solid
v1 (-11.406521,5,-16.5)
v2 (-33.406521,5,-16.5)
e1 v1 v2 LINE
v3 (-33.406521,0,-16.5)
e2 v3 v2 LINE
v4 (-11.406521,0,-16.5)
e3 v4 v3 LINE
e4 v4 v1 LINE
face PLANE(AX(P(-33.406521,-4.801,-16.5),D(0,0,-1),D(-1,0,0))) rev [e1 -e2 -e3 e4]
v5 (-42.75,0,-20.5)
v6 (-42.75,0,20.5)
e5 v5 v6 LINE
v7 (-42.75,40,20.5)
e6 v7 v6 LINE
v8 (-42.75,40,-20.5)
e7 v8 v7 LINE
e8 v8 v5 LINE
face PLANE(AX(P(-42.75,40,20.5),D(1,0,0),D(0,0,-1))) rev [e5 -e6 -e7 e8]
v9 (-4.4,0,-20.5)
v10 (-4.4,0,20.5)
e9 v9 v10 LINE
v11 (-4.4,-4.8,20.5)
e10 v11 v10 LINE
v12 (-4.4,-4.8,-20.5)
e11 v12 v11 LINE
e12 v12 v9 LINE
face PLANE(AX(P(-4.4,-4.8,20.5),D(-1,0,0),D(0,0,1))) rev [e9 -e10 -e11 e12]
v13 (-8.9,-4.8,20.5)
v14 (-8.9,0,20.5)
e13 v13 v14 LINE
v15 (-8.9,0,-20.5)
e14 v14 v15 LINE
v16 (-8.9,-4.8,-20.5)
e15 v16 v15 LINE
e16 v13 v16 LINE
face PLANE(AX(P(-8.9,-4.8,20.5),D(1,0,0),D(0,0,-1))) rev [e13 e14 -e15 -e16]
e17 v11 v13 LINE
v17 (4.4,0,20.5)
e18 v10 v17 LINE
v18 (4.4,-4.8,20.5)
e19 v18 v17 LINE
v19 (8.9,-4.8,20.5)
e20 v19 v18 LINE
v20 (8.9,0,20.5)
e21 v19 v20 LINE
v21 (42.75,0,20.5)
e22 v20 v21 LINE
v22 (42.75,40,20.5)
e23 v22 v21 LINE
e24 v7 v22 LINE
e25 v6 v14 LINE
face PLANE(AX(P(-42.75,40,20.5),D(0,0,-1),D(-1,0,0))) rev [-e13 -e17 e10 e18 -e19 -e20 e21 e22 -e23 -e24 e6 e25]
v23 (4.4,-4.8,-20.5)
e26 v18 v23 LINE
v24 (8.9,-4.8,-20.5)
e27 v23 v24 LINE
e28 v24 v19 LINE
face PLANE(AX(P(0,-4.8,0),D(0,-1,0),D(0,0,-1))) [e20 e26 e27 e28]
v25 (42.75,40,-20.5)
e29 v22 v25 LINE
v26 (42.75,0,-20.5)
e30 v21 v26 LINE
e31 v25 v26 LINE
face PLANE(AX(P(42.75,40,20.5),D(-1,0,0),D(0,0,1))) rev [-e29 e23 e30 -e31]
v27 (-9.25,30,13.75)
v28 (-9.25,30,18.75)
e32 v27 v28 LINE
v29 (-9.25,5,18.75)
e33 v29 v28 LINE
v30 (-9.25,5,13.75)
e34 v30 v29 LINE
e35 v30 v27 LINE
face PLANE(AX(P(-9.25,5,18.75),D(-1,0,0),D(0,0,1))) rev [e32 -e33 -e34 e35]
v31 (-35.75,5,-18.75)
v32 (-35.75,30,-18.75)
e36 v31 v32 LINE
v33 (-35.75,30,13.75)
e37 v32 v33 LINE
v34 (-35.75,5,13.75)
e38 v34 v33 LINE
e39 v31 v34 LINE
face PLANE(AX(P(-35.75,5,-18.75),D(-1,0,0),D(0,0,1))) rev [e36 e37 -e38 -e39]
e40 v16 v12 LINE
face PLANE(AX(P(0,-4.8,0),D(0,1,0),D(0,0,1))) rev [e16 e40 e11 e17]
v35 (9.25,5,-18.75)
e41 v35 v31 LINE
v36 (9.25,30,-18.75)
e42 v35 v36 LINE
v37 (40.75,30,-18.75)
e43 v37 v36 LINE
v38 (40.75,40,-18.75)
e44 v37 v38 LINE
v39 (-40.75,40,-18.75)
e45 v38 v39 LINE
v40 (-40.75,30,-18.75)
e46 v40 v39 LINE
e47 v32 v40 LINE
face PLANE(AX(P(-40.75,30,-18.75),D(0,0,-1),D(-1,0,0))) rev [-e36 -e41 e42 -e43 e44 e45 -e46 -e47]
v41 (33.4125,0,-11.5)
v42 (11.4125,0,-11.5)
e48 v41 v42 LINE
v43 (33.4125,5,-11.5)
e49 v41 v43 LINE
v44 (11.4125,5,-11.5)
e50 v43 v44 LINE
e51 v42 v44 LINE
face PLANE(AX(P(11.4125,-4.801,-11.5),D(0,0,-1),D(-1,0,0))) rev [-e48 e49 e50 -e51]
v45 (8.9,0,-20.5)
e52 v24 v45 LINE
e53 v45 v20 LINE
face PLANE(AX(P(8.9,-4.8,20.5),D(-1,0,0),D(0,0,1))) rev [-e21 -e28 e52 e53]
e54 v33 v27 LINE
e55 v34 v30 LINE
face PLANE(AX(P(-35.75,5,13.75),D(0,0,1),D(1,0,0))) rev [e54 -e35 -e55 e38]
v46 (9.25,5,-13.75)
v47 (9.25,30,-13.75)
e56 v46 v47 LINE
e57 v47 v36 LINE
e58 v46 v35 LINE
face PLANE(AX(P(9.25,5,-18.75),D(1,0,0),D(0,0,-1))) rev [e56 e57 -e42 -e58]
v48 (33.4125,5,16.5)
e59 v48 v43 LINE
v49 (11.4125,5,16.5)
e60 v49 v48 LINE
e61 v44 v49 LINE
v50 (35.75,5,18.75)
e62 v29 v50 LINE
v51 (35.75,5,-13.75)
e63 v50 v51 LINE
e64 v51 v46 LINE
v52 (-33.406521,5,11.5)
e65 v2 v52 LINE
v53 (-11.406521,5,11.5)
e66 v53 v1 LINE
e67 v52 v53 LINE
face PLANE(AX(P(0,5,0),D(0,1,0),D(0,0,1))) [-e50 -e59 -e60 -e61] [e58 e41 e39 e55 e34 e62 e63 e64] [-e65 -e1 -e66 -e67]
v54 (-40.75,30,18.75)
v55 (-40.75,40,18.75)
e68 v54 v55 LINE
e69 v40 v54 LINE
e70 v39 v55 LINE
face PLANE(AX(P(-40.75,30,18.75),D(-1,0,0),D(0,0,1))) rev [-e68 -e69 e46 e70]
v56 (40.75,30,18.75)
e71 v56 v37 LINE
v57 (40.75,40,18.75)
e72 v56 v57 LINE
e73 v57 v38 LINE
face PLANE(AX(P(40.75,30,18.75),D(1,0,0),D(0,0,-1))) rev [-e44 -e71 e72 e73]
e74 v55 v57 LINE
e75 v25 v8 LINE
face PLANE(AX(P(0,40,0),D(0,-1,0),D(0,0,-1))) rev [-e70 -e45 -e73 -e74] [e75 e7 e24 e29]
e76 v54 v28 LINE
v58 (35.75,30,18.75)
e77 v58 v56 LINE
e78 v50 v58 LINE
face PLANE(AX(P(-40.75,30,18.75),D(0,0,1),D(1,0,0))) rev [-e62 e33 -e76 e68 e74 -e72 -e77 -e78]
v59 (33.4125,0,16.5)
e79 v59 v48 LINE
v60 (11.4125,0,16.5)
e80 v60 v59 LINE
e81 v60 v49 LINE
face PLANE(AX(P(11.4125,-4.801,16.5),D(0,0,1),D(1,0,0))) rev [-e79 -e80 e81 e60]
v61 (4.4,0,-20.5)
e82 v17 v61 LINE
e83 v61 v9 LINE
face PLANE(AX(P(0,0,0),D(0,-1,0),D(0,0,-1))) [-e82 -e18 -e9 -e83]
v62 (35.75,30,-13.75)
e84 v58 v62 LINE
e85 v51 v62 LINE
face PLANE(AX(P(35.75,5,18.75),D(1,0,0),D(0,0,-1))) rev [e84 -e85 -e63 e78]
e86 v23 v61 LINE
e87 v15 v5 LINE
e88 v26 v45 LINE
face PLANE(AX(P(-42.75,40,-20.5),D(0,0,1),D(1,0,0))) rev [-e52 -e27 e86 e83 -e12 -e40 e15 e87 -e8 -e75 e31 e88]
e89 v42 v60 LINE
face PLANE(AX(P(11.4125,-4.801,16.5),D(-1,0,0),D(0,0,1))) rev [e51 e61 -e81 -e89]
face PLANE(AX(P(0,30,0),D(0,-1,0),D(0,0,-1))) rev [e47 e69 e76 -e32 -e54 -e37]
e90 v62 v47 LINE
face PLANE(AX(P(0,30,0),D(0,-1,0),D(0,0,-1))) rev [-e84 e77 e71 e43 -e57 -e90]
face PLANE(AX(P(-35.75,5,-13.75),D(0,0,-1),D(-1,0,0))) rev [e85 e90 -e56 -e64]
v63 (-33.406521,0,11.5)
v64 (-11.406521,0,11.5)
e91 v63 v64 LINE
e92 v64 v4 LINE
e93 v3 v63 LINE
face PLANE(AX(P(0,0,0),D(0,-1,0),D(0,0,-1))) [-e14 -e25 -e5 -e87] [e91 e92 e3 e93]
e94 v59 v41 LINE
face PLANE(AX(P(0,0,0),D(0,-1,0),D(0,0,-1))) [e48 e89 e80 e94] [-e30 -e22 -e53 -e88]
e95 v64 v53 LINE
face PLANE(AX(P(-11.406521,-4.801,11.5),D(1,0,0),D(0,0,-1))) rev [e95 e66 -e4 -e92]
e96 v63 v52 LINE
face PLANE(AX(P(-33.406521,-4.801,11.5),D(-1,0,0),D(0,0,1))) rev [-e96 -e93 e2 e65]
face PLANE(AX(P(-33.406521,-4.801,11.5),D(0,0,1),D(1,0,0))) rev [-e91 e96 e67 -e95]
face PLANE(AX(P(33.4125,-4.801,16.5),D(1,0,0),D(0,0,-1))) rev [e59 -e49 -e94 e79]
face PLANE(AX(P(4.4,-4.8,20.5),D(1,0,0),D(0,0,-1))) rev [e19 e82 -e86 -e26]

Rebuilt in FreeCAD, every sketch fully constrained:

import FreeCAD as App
import Part
import Sketcher

V = App.Vector


def add_polygon(sketch, points):
    """Adds a closed chain of lines whose ends are joined by coincident constraints."""
    first, n = sketch.GeometryCount, len(points)
    for a, b in zip(points, points[1:] + points[:1]):
        sketch.addGeometry(Part.LineSegment(App.Vector(*a, 0), App.Vector(*b, 0)), False)
    for i in range(n):
        sketch.addConstraint(Sketcher.Constraint("Coincident", first + i, 2, first + (i + 1) % n, 1))

doc = App.newDocument("Part")
body = doc.addObject("PartDesign::Body", "Body")

sketch1 = body.newObject("Sketcher::SketchObject", "Sketch")
sketch1.AttachmentSupport = (doc.getObject("XZ_Plane"), [""])
sketch1.MapMode = "FlatFace"
add_polygon(sketch1, [(-43, -20), (-43, 20), (43, 20), (43, -20)])
sketch1.addConstraint(Sketcher.Constraint("Vertical", 0))
sketch1.addConstraint(Sketcher.Constraint("Horizontal", 1))
sketch1.addConstraint(Sketcher.Constraint("Vertical", 2))
sketch1.addConstraint(Sketcher.Constraint("Horizontal", 3))
sketch1.addConstraint(Sketcher.Constraint("Symmetric", 0, 2, 2, 2, -1, 1))
sketch1.addConstraint(Sketcher.Constraint("DistanceY", 0, 1, 0, 2, 41.0))
sketch1.addConstraint(Sketcher.Constraint("DistanceX", 1, 1, 1, 2, 85.5))
pad1 = body.newObject("PartDesign::Pad", "Pad")
pad1.Profile = sketch1
pad1.Length = 40
pad1.Reversed = True

sketch2 = body.newObject("Sketcher::SketchObject", "Sketch001")
sketch2.AttachmentSupport = (doc.getObject("XZ_Plane"), [""])
sketch2.MapMode = "FlatFace"
add_polygon(sketch2, [(-8.9, 20.5), (-8.9, -20.5), (-4.4, -20.5), (-4.4, 20.5)])
add_polygon(sketch2, [(4.4, 20.5), (4.4, -20.5), (8.9, -20.5), (8.9, 20.5)])
sketch2.addConstraint(Sketcher.Constraint("Vertical", 0))
sketch2.addConstraint(Sketcher.Constraint("Horizontal", 1))
sketch2.addConstraint(Sketcher.Constraint("Vertical", 2))
sketch2.addConstraint(Sketcher.Constraint("Horizontal", 3))
sketch2.addConstraint(Sketcher.Constraint("Vertical", 4))
sketch2.addConstraint(Sketcher.Constraint("Horizontal", 5))
sketch2.addConstraint(Sketcher.Constraint("Vertical", 6))
sketch2.addConstraint(Sketcher.Constraint("Horizontal", 7))
sketch2.addConstraint(Sketcher.Constraint("Symmetric", 2, 2, 4, 2, -1, 1))
sketch2.addConstraint(Sketcher.Constraint("Symmetric", 0, 2, 6, 2, -1, 1))
sketch2.addConstraint(Sketcher.Constraint("Horizontal", 1, 2, 4, 2))
sketch2.addConstraint(Sketcher.Constraint("DistanceY", 0, 2, 0, 1, 41.0))
sketch2.addConstraint(Sketcher.Constraint("DistanceX", 1, 1, 1, 2, 4.5))
sketch2.addConstraint(Sketcher.Constraint("DistanceX", 0, 2, -1, 1, 8.9))
pad2 = body.newObject("PartDesign::Pad", "Pad001")
pad2.Profile = sketch2
pad2.Length = 4.8

sketch3 = body.newObject("Sketcher::SketchObject", "Sketch002")
sketch3.AttachmentSupport = (doc.getObject("XZ_Plane"), [""])
sketch3.MapMode = "FlatFace"
sketch3.AttachmentOffset = App.Placement(V(0, 0, -40), App.Rotation())
add_polygon(sketch3, [(-41, -19), (-41, 19), (41, 19), (41, -19)])
sketch3.addConstraint(Sketcher.Constraint("Vertical", 0))
sketch3.addConstraint(Sketcher.Constraint("Horizontal", 1))
sketch3.addConstraint(Sketcher.Constraint("Vertical", 2))
sketch3.addConstraint(Sketcher.Constraint("Horizontal", 3))
sketch3.addConstraint(Sketcher.Constraint("Symmetric", 0, 2, 2, 2, -1, 1))
sketch3.addConstraint(Sketcher.Constraint("DistanceX", 1, 1, 1, 2, 81.5))
sketch3.addConstraint(Sketcher.Constraint("DistanceY", 0, 1, 0, 2, 37.5))
pocket1 = body.newObject("PartDesign::Pocket", "Pocket")
pocket1.Profile = sketch3
pocket1.Length = 10
pocket1.Reversed = True

sketch4 = body.newObject("Sketcher::SketchObject", "Sketch003")
sketch4.AttachmentSupport = (doc.getObject("XZ_Plane"), [""])
sketch4.MapMode = "FlatFace"
sketch4.AttachmentOffset = App.Placement(V(0, 0, -30), App.Rotation())
add_polygon(sketch4, [(-36, -19), (-36, -14), (9, -14), (9, -19)])
add_polygon(sketch4, [(-9, 14), (-9, 19), (36, 19), (36, 14)])
sketch4.addConstraint(Sketcher.Constraint("Vertical", 0))
sketch4.addConstraint(Sketcher.Constraint("Horizontal", 1))
sketch4.addConstraint(Sketcher.Constraint("Vertical", 2))
sketch4.addConstraint(Sketcher.Constraint("Horizontal", 3))
sketch4.addConstraint(Sketcher.Constraint("Vertical", 4))
sketch4.addConstraint(Sketcher.Constraint("Horizontal", 5))
sketch4.addConstraint(Sketcher.Constraint("Vertical", 6))
sketch4.addConstraint(Sketcher.Constraint("Horizontal", 7))
sketch4.addConstraint(Sketcher.Constraint("Symmetric", 2, 2, 4, 2, -1, 1))
sketch4.addConstraint(Sketcher.Constraint("Symmetric", 0, 2, 6, 2, -1, 1))
sketch4.addConstraint(Sketcher.Constraint("DistanceX", 1, 1, 1, 2, 45.0))
sketch4.addConstraint(Sketcher.Constraint("DistanceY", 0, 1, 0, 2, 5.0))
sketch4.addConstraint(Sketcher.Constraint("DistanceX", 4, 2, 1, 2, 18.5))
sketch4.addConstraint(Sketcher.Constraint("DistanceY", 1, 2, 4, 2, 32.5))
pocket2 = body.newObject("PartDesign::Pocket", "Pocket001")
pocket2.Profile = sketch4
pocket2.Length = 25
pocket2.Reversed = True

sketch5 = body.newObject("Sketcher::SketchObject", "Sketch004")
sketch5.AttachmentSupport = (doc.getObject("XZ_Plane"), [""])
sketch5.MapMode = "FlatFace"
sketch5.AttachmentOffset = App.Placement(V(0, 0, -30), App.Rotation())
add_polygon(sketch5, [(-36, -14), (-36, 14), (36, 14), (36, -14)])
sketch5.addConstraint(Sketcher.Constraint("Vertical", 0))
sketch5.addConstraint(Sketcher.Constraint("Horizontal", 1))
sketch5.addConstraint(Sketcher.Constraint("Vertical", 2))
sketch5.addConstraint(Sketcher.Constraint("Horizontal", 3))
sketch5.addConstraint(Sketcher.Constraint("Symmetric", 0, 2, 2, 2, -1, 1))
sketch5.addConstraint(Sketcher.Constraint("DistanceX", 1, 1, 1, 2, 71.5))
sketch5.addConstraint(Sketcher.Constraint("DistanceY", 0, 1, 0, 2, 27.5))
pocket3 = body.newObject("PartDesign::Pocket", "Pocket002")
pocket3.Profile = sketch5
pocket3.Length = 25
pocket3.Reversed = True

sketch6 = body.newObject("Sketcher::SketchObject", "Sketch005")
sketch6.AttachmentSupport = (doc.getObject("XZ_Plane"), [""])
sketch6.MapMode = "FlatFace"
sketch6.AttachmentOffset = App.Placement(V(0, 0, -5), App.Rotation())
add_polygon(sketch6, [(-33, -16), (-33, 12), (-11, 12), (-11, -16)])
sketch6.addConstraint(Sketcher.Constraint("Vertical", 0))
sketch6.addConstraint(Sketcher.Constraint("Horizontal", 1))
sketch6.addConstraint(Sketcher.Constraint("Vertical", 2))
sketch6.addConstraint(Sketcher.Constraint("Horizontal", 3))
sketch6.addConstraint(Sketcher.Constraint("DistanceX", 1, 1, 1, 2, 22.0))
sketch6.addConstraint(Sketcher.Constraint("DistanceY", 0, 1, 0, 2, 28.0))
sketch6.addConstraint(Sketcher.Constraint("DistanceY", -1, 1, 0, 2, 11.5))
sketch6.addConstraint(Sketcher.Constraint("DistanceX", 0, 2, -1, 1, 33.406521))
pocket4 = body.newObject("PartDesign::Pocket", "Pocket003")
pocket4.Profile = sketch6
pocket4.Type = "UpToFirst"
pocket4.Reversed = True

sketch7 = body.newObject("Sketcher::SketchObject", "Sketch006")
sketch7.AttachmentSupport = (doc.getObject("XZ_Plane"), [""])
sketch7.MapMode = "FlatFace"
sketch7.AttachmentOffset = App.Placement(V(0, 0, -5), App.Rotation())
add_polygon(sketch7, [(11, -12), (11, 16), (33, 16), (33, -12)])
sketch7.addConstraint(Sketcher.Constraint("Vertical", 0))
sketch7.addConstraint(Sketcher.Constraint("Horizontal", 1))
sketch7.addConstraint(Sketcher.Constraint("Vertical", 2))
sketch7.addConstraint(Sketcher.Constraint("Horizontal", 3))
sketch7.addConstraint(Sketcher.Constraint("DistanceX", 1, 1, 1, 2, 22.0))
sketch7.addConstraint(Sketcher.Constraint("DistanceY", 0, 1, 0, 2, 28.0))
sketch7.addConstraint(Sketcher.Constraint("DistanceY", -1, 1, 0, 2, 16.5))
sketch7.addConstraint(Sketcher.Constraint("DistanceX", -1, 1, 0, 2, 11.4125))
pocket5 = body.newObject("PartDesign::Pocket", "Pocket004")
pocket5.Profile = sketch7
pocket5.Type = "UpToFirst"
pocket5.Reversed = True

doc.recompute()
